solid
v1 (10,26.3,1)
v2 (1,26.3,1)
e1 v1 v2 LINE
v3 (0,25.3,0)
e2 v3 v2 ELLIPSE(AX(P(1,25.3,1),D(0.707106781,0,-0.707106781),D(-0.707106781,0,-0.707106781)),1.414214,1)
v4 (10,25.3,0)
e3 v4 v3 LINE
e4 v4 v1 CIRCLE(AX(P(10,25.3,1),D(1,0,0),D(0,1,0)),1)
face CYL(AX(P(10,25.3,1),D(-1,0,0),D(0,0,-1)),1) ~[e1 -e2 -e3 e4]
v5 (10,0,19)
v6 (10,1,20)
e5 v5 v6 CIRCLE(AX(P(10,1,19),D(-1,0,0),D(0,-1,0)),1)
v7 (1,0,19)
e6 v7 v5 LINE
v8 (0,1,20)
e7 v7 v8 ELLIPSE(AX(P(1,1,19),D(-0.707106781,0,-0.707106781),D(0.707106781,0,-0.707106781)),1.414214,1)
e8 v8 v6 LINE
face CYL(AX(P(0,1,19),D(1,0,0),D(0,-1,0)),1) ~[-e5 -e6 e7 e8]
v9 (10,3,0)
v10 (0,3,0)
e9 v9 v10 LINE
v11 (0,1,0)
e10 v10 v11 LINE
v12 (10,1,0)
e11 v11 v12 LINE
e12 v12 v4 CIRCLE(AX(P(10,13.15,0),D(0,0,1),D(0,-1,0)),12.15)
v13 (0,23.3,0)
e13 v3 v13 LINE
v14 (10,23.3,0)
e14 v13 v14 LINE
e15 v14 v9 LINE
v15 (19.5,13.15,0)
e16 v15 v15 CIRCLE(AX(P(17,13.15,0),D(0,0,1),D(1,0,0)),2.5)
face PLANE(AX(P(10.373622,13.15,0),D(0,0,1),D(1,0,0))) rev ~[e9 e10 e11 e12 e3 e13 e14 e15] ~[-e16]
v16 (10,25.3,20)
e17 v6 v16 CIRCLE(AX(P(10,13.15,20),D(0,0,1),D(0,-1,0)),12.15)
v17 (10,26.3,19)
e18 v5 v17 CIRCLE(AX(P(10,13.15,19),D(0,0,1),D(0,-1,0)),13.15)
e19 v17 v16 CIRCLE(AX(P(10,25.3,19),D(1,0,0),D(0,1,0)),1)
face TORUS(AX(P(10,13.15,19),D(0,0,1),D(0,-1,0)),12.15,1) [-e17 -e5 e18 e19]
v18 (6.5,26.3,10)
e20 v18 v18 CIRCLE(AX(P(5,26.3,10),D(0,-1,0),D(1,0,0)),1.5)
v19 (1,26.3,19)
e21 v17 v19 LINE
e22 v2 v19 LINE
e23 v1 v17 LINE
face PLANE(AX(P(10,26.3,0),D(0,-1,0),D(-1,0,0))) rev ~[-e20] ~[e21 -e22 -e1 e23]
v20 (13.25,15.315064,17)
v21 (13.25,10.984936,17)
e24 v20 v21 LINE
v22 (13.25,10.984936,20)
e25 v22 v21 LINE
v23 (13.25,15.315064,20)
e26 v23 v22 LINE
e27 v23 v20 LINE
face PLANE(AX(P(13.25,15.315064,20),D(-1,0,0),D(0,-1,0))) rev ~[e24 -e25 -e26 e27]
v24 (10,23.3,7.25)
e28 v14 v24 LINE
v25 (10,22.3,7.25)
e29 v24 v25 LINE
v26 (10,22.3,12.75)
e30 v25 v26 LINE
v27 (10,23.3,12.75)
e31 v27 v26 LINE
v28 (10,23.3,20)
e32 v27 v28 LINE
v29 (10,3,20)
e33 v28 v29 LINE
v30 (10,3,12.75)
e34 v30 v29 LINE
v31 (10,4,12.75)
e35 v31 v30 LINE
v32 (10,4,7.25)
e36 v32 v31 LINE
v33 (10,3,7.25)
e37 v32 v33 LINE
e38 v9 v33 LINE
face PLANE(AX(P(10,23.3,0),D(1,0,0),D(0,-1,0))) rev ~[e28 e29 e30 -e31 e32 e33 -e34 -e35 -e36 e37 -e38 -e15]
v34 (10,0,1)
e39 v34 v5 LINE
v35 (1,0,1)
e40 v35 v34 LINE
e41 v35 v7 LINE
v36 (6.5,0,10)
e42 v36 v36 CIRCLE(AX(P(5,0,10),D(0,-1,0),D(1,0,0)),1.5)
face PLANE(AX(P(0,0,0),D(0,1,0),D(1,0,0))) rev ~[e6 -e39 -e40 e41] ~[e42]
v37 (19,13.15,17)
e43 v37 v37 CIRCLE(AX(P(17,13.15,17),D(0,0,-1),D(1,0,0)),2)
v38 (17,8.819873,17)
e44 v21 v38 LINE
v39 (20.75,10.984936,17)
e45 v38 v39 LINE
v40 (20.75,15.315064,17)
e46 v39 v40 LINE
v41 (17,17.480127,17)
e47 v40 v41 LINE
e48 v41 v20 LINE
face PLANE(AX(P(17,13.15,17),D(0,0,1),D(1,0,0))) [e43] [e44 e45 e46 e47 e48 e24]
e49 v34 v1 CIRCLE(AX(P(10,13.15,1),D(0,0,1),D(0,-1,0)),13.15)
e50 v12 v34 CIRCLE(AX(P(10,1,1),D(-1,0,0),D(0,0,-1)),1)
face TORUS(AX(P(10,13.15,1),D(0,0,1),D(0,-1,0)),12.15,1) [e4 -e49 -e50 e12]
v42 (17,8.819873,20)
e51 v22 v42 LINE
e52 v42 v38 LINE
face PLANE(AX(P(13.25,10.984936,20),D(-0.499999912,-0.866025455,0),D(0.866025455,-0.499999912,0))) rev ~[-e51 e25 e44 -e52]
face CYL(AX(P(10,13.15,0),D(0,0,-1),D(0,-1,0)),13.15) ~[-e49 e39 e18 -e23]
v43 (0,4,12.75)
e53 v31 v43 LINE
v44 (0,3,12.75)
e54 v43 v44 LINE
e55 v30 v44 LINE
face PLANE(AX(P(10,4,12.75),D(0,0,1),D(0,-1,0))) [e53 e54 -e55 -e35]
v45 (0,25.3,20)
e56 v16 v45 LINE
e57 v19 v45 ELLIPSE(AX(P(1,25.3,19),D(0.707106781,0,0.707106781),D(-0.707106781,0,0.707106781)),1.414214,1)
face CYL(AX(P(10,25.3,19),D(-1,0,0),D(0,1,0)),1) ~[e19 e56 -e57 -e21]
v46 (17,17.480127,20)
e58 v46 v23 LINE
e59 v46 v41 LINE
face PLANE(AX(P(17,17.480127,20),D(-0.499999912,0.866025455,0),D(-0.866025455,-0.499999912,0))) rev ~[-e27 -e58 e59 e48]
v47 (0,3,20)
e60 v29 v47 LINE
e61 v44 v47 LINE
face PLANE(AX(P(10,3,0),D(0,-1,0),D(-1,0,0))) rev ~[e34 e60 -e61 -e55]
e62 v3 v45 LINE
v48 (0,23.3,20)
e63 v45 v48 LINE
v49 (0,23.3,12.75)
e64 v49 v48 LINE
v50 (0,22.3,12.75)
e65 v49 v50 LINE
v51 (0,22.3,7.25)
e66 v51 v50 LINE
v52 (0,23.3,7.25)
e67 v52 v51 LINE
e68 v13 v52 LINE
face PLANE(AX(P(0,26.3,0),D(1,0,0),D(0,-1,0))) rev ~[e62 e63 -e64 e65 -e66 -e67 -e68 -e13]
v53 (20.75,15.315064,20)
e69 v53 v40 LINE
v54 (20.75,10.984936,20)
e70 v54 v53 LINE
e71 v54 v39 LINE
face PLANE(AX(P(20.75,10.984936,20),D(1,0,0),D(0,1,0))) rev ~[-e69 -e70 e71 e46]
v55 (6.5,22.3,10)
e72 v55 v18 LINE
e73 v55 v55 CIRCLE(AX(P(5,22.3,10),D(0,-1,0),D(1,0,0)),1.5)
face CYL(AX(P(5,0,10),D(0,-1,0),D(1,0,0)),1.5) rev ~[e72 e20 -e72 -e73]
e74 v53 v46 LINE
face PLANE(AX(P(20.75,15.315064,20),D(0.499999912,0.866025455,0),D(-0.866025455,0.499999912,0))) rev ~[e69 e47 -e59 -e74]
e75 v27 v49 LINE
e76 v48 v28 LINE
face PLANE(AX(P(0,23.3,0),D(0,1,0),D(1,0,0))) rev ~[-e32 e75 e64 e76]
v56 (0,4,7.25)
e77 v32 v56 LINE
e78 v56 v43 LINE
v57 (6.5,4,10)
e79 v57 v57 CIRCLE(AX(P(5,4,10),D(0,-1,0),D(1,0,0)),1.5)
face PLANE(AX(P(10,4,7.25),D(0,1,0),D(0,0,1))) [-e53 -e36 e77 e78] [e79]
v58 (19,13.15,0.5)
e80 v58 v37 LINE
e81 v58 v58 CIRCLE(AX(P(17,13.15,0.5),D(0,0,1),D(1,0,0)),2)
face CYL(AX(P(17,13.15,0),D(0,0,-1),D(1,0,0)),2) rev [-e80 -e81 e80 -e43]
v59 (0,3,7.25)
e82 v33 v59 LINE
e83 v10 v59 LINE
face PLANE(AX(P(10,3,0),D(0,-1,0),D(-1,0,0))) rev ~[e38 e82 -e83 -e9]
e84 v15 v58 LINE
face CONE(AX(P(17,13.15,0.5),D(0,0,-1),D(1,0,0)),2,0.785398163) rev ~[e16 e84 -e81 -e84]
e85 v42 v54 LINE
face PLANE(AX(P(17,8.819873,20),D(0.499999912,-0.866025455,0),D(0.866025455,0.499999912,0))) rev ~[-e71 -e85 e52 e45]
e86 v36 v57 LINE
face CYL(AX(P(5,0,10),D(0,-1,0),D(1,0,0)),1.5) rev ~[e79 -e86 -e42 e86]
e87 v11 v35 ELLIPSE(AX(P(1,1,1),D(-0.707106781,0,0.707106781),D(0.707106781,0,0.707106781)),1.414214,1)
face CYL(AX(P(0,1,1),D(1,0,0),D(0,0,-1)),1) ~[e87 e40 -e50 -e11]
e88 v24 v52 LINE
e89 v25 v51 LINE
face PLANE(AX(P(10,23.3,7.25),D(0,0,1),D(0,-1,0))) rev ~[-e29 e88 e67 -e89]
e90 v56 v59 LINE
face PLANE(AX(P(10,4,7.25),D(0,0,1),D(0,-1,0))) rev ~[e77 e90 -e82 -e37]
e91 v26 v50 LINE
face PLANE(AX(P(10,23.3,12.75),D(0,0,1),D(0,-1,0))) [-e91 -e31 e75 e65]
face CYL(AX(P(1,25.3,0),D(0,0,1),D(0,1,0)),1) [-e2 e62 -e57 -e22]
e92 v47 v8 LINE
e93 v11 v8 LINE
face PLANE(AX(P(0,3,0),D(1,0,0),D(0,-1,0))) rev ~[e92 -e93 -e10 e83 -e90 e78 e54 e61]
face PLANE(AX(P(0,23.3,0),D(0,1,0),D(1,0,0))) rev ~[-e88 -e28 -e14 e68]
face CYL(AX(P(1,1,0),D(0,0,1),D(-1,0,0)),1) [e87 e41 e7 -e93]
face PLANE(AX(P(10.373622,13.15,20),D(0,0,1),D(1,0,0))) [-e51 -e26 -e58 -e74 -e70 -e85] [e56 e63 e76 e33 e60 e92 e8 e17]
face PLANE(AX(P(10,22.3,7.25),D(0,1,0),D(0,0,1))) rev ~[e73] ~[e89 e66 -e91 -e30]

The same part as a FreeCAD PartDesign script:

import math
import FreeCAD as App
import Part
import Sketcher
Q = App.Units.Quantity


def edges_at(feature, points):
    """Names of the edges that pass closest to the given points."""
    edges = feature.Shape.Edges
    near = lambda p: min(range(len(edges)), key=lambda i: edges[i].distToShape(Part.Vertex(*p))[0])
    return sorted({f"Edge{near(p) + 1}" for p in points})

doc = App.newDocument("Part")
body = doc.addObject("PartDesign::Body", "Body")

# Sketch on XY plane
sketch1 = body.newObject("Sketcher::SketchObject", "Sketch")
sketch1.AttachmentSupport = (doc.getObject("XY_Plane"), [""])
sketch1.MapMode = "FlatFace"
sketch1.addGeometry([
    Part.LineSegment(App.Vector(0, 3, 0), App.Vector(0, 0, 0)),  # 0
    Part.LineSegment(App.Vector(0, 0, 0), App.Vector(10, 0, 0)),  # 1
    Part.ArcOfCircle(Part.Circle(App.Vector(10, 13.2, 0), App.Vector(0, 0, 1), 13.2), math.radians(-90), math.radians(90)),  # 2
    Part.LineSegment(App.Vector(10, 26.3, 0), App.Vector(0, 26.3, 0)),  # 3
    Part.LineSegment(App.Vector(0, 26.3, 0), App.Vector(0, 23.3, 0)),  # 4
    Part.LineSegment(App.Vector(0, 23.3, 0), App.Vector(10, 23.3, 0)),  # 5
    Part.LineSegment(App.Vector(10, 23.3, 0), App.Vector(10, 3, 0)),  # 6
    Part.LineSegment(App.Vector(10, 3, 0), App.Vector(0, 3, 0)),  # 7
    Part.Circle(App.Vector(17, 13.2, 0), App.Vector(0, 0, 1), 2),  # 8
], False)
sketch1.addConstraint([
    Sketcher.Constraint("Coincident", 0, 2, 1, 1),
    Sketcher.Constraint("Tangent", 1, 2, 2, 1),
    Sketcher.Constraint("Tangent", 2, 2, 3, 1),
    Sketcher.Constraint("Coincident", 3, 2, 4, 1),
    Sketcher.Constraint("Coincident", 4, 2, 5, 1),
    Sketcher.Constraint("Coincident", 5, 2, 6, 1),
    Sketcher.Constraint("Coincident", 6, 2, 7, 1),
    Sketcher.Constraint("Coincident", 7, 2, 0, 1),
    Sketcher.Constraint("Vertical", 0),
    Sketcher.Constraint("Horizontal", 1),
    Sketcher.Constraint("Horizontal", 3),
    Sketcher.Constraint("Vertical", 4),
    Sketcher.Constraint("Horizontal", 5),
    Sketcher.Constraint("Vertical", 6),
    Sketcher.Constraint("Horizontal", 7),
    Sketcher.Constraint("Coincident", 0, 2, -1, 1),
    Sketcher.Constraint("PointOnObject", 3, 2, -2),
    Sketcher.Constraint("Horizontal", 2, 3, 8, 3),
    Sketcher.Constraint("Vertical", 2, 2, 5, 2),
    Sketcher.Constraint("Equal", 0, 4),
    Sketcher.Constraint("Diameter", 8, Q("4 mm")),
    Sketcher.Constraint("DistanceX", 1, 1, 1, 2, Q("10 mm")),
    Sketcher.Constraint("DistanceY", 0, 2, 0, 1, Q("3 mm")),
    Sketcher.Constraint("Radius", 2, Q("13.15 mm")),
    Sketcher.Constraint("DistanceX", -1, 1, 8, 3, Q("17 mm")),
])
pad1 = body.newObject("PartDesign::Pad", "Pad")
pad1.Profile = sketch1
pad1.Length = 20

# Sketch on YZ plane
sketch2 = body.newObject("Sketcher::SketchObject", "Sketch001")
sketch2.AttachmentSupport = (doc.getObject("YZ_Plane"), [""])
sketch2.MapMode = "FlatFace"
sketch2.AttachmentOffset = App.Placement(App.Vector(0, 0, 10), App.Rotation())
sketch2.addGeometry([
    Part.LineSegment(App.Vector(23.3, 12.8, 0), App.Vector(23.3, 7.2, 0)),  # 0
    Part.LineSegment(App.Vector(23.3, 7.2, 0), App.Vector(22.3, 7.2, 0)),  # 1
    Part.LineSegment(App.Vector(22.3, 7.2, 0), App.Vector(22.3, 12.8, 0)),  # 2
    Part.LineSegment(App.Vector(22.3, 12.8, 0), App.Vector(23.3, 12.8, 0)),  # 3
    Part.LineSegment(App.Vector(4, 12.8, 0), App.Vector(4, 7.2, 0)),  # 4
    Part.LineSegment(App.Vector(4, 7.2, 0), App.Vector(3, 7.2, 0)),  # 5
    Part.LineSegment(App.Vector(3, 7.2, 0), App.Vector(3, 12.8, 0)),  # 6
    Part.LineSegment(App.Vector(3, 12.8, 0), App.Vector(4, 12.8, 0)),  # 7
], False)
sketch2.addConstraint([
    Sketcher.Constraint("Coincident", 0, 2, 1, 1),
    Sketcher.Constraint("Coincident", 1, 2, 2, 1),
    Sketcher.Constraint("Coincident", 2, 2, 3, 1),
    Sketcher.Constraint("Coincident", 3, 2, 0, 1),
    Sketcher.Constraint("Coincident", 4, 2, 5, 1),
    Sketcher.Constraint("Coincident", 5, 2, 6, 1),
    Sketcher.Constraint("Coincident", 6, 2, 7, 1),
    Sketcher.Constraint("Coincident", 7, 2, 4, 1),
    Sketcher.Constraint("Vertical", 0),
    Sketcher.Constraint("Horizontal", 1),
    Sketcher.Constraint("Vertical", 2),
    Sketcher.Constraint("Horizontal", 3),
    Sketcher.Constraint("Vertical", 4),
    Sketcher.Constraint("Horizontal", 5),
    Sketcher.Constraint("Vertical", 6),
    Sketcher.Constraint("Horizontal", 7),
    Sketcher.Constraint("Horizontal", 1, 2, 4, 2),
    Sketcher.Constraint("Horizontal", 3, 2, 6, 2),
    Sketcher.Constraint("Equal", 3, 5),
    Sketcher.Constraint("DistanceX", 1, 2, 1, 1, Q("1 mm")),
    Sketcher.Constraint("DistanceY", 0, 2, 0, 1, Q("5.5 mm")),
    Sketcher.Constraint("DistanceX", -1, 1, 4, 2, Q("4 mm")),
    Sketcher.Constraint("DistanceX", -1, 1, 0, 2, Q("23.3 mm")),
    Sketcher.Constraint("DistanceY", -1, 1, 0, 2, Q("7.25 mm")),
])
pad2 = body.newObject("PartDesign::Pad", "Pad001")
pad2.Profile = sketch2
pad2.Length = 10
pad2.Reversed = True

# Sketch on XZ plane
sketch3 = body.newObject("Sketcher::SketchObject", "Sketch002")
sketch3.AttachmentSupport = (doc.getObject("XZ_Plane"), [""])
sketch3.MapMode = "FlatFace"
sketch3.addGeometry(Part.Circle(App.Vector(5, 10, 0), App.Vector(0, 0, 1), 1.5), False)
sketch3.addConstraint([
    Sketcher.Constraint("Diameter", 0, Q("3 mm")),
    Sketcher.Constraint("DistanceX", -1, 1, 0, 3, Q("5 mm")),
    Sketcher.Constraint("DistanceY", -1, 1, 0, 3, Q("10 mm")),
])
pocket1 = body.newObject("PartDesign::Pocket", "Pocket")
pocket1.Profile = sketch3
pocket1.Type = "ThroughAll"
doc.recompute()

chamfer = body.newObject("PartDesign::Chamfer", "Chamfer")
chamfer.Base = (pocket1, edges_at(pocket1, [(15, 13.15, 0)]))
chamfer.Size = 0.5
doc.recompute()

fillet = body.newObject("PartDesign::Fillet", "Fillet")
fillet.Base = (chamfer, edges_at(chamfer, [
    (23.15, 13.15, 20),
    (23.15, 13.15, 0),
    (0, 0, 10),
    (0, 26.3, 10),
]))
fillet.Radius = 1

# Sketch on XY plane
sketch4 = body.newObject("Sketcher::SketchObject", "Sketch003")
sketch4.AttachmentSupport = (doc.getObject("XY_Plane"), [""])
sketch4.MapMode = "FlatFace"
sketch4.AttachmentOffset = App.Placement(App.Vector(0, 0, 20), App.Rotation())
sketch4.addGeometry([
    Part.LineSegment(App.Vector(20.8, 11, 0), App.Vector(20.8, 15.3, 0)),  # 0
    Part.LineSegment(App.Vector(20.8, 15.3, 0), App.Vector(17, 17.5, 0)),  # 1
    Part.LineSegment(App.Vector(17, 17.5, 0), App.Vector(13.2, 15.3, 0)),  # 2
    Part.LineSegment(App.Vector(13.2, 15.3, 0), App.Vector(13.2, 11, 0)),  # 3
    Part.LineSegment(App.Vector(13.2, 11, 0), App.Vector(17, 8.8, 0)),  # 4
    Part.LineSegment(App.Vector(17, 8.8, 0), App.Vector(20.8, 11, 0)),  # 5
], False)
sketch4.addConstraint([
    Sketcher.Constraint("Coincident", 0, 2, 1, 1),
    Sketcher.Constraint("Coincident", 1, 2, 2, 1),
    Sketcher.Constraint("Coincident", 2, 2, 3, 1),
    Sketcher.Constraint("Coincident", 3, 2, 4, 1),
    Sketcher.Constraint("Coincident", 4, 2, 5, 1),
    Sketcher.Constraint("Coincident", 5, 2, 0, 1),
    Sketcher.Constraint("Vertical", 0),
    Sketcher.Constraint("Vertical", 3),
    Sketcher.Constraint("Parallel", 1, 4),
    Sketcher.Constraint("Parallel", 2, 5),
    Sketcher.Constraint("Horizontal", 0, 2, 2, 2),
    Sketcher.Constraint("Horizontal", 3, 2, 5, 2),
    Sketcher.Constraint("Vertical", 1, 2, 4, 2),
    Sketcher.Constraint("Angle", 1, Q("150.000006 deg")),
    Sketcher.Constraint("DistanceX", -1, 1, 1, 2, Q("17 mm")),
    Sketcher.Constraint("DistanceX", 2, 2, 0, 2, Q("7.5 mm")),
    Sketcher.Constraint("DistanceY", 0, 1, 0, 2, Q("4.330128 mm")),
    Sketcher.Constraint("DistanceY", -1, 1, 0, 2, Q("15.315064 mm")),
])
pocket2 = body.newObject("PartDesign::Pocket", "Pocket001")
pocket2.Profile = sketch4
pocket2.Length = 3

doc.recompute()
